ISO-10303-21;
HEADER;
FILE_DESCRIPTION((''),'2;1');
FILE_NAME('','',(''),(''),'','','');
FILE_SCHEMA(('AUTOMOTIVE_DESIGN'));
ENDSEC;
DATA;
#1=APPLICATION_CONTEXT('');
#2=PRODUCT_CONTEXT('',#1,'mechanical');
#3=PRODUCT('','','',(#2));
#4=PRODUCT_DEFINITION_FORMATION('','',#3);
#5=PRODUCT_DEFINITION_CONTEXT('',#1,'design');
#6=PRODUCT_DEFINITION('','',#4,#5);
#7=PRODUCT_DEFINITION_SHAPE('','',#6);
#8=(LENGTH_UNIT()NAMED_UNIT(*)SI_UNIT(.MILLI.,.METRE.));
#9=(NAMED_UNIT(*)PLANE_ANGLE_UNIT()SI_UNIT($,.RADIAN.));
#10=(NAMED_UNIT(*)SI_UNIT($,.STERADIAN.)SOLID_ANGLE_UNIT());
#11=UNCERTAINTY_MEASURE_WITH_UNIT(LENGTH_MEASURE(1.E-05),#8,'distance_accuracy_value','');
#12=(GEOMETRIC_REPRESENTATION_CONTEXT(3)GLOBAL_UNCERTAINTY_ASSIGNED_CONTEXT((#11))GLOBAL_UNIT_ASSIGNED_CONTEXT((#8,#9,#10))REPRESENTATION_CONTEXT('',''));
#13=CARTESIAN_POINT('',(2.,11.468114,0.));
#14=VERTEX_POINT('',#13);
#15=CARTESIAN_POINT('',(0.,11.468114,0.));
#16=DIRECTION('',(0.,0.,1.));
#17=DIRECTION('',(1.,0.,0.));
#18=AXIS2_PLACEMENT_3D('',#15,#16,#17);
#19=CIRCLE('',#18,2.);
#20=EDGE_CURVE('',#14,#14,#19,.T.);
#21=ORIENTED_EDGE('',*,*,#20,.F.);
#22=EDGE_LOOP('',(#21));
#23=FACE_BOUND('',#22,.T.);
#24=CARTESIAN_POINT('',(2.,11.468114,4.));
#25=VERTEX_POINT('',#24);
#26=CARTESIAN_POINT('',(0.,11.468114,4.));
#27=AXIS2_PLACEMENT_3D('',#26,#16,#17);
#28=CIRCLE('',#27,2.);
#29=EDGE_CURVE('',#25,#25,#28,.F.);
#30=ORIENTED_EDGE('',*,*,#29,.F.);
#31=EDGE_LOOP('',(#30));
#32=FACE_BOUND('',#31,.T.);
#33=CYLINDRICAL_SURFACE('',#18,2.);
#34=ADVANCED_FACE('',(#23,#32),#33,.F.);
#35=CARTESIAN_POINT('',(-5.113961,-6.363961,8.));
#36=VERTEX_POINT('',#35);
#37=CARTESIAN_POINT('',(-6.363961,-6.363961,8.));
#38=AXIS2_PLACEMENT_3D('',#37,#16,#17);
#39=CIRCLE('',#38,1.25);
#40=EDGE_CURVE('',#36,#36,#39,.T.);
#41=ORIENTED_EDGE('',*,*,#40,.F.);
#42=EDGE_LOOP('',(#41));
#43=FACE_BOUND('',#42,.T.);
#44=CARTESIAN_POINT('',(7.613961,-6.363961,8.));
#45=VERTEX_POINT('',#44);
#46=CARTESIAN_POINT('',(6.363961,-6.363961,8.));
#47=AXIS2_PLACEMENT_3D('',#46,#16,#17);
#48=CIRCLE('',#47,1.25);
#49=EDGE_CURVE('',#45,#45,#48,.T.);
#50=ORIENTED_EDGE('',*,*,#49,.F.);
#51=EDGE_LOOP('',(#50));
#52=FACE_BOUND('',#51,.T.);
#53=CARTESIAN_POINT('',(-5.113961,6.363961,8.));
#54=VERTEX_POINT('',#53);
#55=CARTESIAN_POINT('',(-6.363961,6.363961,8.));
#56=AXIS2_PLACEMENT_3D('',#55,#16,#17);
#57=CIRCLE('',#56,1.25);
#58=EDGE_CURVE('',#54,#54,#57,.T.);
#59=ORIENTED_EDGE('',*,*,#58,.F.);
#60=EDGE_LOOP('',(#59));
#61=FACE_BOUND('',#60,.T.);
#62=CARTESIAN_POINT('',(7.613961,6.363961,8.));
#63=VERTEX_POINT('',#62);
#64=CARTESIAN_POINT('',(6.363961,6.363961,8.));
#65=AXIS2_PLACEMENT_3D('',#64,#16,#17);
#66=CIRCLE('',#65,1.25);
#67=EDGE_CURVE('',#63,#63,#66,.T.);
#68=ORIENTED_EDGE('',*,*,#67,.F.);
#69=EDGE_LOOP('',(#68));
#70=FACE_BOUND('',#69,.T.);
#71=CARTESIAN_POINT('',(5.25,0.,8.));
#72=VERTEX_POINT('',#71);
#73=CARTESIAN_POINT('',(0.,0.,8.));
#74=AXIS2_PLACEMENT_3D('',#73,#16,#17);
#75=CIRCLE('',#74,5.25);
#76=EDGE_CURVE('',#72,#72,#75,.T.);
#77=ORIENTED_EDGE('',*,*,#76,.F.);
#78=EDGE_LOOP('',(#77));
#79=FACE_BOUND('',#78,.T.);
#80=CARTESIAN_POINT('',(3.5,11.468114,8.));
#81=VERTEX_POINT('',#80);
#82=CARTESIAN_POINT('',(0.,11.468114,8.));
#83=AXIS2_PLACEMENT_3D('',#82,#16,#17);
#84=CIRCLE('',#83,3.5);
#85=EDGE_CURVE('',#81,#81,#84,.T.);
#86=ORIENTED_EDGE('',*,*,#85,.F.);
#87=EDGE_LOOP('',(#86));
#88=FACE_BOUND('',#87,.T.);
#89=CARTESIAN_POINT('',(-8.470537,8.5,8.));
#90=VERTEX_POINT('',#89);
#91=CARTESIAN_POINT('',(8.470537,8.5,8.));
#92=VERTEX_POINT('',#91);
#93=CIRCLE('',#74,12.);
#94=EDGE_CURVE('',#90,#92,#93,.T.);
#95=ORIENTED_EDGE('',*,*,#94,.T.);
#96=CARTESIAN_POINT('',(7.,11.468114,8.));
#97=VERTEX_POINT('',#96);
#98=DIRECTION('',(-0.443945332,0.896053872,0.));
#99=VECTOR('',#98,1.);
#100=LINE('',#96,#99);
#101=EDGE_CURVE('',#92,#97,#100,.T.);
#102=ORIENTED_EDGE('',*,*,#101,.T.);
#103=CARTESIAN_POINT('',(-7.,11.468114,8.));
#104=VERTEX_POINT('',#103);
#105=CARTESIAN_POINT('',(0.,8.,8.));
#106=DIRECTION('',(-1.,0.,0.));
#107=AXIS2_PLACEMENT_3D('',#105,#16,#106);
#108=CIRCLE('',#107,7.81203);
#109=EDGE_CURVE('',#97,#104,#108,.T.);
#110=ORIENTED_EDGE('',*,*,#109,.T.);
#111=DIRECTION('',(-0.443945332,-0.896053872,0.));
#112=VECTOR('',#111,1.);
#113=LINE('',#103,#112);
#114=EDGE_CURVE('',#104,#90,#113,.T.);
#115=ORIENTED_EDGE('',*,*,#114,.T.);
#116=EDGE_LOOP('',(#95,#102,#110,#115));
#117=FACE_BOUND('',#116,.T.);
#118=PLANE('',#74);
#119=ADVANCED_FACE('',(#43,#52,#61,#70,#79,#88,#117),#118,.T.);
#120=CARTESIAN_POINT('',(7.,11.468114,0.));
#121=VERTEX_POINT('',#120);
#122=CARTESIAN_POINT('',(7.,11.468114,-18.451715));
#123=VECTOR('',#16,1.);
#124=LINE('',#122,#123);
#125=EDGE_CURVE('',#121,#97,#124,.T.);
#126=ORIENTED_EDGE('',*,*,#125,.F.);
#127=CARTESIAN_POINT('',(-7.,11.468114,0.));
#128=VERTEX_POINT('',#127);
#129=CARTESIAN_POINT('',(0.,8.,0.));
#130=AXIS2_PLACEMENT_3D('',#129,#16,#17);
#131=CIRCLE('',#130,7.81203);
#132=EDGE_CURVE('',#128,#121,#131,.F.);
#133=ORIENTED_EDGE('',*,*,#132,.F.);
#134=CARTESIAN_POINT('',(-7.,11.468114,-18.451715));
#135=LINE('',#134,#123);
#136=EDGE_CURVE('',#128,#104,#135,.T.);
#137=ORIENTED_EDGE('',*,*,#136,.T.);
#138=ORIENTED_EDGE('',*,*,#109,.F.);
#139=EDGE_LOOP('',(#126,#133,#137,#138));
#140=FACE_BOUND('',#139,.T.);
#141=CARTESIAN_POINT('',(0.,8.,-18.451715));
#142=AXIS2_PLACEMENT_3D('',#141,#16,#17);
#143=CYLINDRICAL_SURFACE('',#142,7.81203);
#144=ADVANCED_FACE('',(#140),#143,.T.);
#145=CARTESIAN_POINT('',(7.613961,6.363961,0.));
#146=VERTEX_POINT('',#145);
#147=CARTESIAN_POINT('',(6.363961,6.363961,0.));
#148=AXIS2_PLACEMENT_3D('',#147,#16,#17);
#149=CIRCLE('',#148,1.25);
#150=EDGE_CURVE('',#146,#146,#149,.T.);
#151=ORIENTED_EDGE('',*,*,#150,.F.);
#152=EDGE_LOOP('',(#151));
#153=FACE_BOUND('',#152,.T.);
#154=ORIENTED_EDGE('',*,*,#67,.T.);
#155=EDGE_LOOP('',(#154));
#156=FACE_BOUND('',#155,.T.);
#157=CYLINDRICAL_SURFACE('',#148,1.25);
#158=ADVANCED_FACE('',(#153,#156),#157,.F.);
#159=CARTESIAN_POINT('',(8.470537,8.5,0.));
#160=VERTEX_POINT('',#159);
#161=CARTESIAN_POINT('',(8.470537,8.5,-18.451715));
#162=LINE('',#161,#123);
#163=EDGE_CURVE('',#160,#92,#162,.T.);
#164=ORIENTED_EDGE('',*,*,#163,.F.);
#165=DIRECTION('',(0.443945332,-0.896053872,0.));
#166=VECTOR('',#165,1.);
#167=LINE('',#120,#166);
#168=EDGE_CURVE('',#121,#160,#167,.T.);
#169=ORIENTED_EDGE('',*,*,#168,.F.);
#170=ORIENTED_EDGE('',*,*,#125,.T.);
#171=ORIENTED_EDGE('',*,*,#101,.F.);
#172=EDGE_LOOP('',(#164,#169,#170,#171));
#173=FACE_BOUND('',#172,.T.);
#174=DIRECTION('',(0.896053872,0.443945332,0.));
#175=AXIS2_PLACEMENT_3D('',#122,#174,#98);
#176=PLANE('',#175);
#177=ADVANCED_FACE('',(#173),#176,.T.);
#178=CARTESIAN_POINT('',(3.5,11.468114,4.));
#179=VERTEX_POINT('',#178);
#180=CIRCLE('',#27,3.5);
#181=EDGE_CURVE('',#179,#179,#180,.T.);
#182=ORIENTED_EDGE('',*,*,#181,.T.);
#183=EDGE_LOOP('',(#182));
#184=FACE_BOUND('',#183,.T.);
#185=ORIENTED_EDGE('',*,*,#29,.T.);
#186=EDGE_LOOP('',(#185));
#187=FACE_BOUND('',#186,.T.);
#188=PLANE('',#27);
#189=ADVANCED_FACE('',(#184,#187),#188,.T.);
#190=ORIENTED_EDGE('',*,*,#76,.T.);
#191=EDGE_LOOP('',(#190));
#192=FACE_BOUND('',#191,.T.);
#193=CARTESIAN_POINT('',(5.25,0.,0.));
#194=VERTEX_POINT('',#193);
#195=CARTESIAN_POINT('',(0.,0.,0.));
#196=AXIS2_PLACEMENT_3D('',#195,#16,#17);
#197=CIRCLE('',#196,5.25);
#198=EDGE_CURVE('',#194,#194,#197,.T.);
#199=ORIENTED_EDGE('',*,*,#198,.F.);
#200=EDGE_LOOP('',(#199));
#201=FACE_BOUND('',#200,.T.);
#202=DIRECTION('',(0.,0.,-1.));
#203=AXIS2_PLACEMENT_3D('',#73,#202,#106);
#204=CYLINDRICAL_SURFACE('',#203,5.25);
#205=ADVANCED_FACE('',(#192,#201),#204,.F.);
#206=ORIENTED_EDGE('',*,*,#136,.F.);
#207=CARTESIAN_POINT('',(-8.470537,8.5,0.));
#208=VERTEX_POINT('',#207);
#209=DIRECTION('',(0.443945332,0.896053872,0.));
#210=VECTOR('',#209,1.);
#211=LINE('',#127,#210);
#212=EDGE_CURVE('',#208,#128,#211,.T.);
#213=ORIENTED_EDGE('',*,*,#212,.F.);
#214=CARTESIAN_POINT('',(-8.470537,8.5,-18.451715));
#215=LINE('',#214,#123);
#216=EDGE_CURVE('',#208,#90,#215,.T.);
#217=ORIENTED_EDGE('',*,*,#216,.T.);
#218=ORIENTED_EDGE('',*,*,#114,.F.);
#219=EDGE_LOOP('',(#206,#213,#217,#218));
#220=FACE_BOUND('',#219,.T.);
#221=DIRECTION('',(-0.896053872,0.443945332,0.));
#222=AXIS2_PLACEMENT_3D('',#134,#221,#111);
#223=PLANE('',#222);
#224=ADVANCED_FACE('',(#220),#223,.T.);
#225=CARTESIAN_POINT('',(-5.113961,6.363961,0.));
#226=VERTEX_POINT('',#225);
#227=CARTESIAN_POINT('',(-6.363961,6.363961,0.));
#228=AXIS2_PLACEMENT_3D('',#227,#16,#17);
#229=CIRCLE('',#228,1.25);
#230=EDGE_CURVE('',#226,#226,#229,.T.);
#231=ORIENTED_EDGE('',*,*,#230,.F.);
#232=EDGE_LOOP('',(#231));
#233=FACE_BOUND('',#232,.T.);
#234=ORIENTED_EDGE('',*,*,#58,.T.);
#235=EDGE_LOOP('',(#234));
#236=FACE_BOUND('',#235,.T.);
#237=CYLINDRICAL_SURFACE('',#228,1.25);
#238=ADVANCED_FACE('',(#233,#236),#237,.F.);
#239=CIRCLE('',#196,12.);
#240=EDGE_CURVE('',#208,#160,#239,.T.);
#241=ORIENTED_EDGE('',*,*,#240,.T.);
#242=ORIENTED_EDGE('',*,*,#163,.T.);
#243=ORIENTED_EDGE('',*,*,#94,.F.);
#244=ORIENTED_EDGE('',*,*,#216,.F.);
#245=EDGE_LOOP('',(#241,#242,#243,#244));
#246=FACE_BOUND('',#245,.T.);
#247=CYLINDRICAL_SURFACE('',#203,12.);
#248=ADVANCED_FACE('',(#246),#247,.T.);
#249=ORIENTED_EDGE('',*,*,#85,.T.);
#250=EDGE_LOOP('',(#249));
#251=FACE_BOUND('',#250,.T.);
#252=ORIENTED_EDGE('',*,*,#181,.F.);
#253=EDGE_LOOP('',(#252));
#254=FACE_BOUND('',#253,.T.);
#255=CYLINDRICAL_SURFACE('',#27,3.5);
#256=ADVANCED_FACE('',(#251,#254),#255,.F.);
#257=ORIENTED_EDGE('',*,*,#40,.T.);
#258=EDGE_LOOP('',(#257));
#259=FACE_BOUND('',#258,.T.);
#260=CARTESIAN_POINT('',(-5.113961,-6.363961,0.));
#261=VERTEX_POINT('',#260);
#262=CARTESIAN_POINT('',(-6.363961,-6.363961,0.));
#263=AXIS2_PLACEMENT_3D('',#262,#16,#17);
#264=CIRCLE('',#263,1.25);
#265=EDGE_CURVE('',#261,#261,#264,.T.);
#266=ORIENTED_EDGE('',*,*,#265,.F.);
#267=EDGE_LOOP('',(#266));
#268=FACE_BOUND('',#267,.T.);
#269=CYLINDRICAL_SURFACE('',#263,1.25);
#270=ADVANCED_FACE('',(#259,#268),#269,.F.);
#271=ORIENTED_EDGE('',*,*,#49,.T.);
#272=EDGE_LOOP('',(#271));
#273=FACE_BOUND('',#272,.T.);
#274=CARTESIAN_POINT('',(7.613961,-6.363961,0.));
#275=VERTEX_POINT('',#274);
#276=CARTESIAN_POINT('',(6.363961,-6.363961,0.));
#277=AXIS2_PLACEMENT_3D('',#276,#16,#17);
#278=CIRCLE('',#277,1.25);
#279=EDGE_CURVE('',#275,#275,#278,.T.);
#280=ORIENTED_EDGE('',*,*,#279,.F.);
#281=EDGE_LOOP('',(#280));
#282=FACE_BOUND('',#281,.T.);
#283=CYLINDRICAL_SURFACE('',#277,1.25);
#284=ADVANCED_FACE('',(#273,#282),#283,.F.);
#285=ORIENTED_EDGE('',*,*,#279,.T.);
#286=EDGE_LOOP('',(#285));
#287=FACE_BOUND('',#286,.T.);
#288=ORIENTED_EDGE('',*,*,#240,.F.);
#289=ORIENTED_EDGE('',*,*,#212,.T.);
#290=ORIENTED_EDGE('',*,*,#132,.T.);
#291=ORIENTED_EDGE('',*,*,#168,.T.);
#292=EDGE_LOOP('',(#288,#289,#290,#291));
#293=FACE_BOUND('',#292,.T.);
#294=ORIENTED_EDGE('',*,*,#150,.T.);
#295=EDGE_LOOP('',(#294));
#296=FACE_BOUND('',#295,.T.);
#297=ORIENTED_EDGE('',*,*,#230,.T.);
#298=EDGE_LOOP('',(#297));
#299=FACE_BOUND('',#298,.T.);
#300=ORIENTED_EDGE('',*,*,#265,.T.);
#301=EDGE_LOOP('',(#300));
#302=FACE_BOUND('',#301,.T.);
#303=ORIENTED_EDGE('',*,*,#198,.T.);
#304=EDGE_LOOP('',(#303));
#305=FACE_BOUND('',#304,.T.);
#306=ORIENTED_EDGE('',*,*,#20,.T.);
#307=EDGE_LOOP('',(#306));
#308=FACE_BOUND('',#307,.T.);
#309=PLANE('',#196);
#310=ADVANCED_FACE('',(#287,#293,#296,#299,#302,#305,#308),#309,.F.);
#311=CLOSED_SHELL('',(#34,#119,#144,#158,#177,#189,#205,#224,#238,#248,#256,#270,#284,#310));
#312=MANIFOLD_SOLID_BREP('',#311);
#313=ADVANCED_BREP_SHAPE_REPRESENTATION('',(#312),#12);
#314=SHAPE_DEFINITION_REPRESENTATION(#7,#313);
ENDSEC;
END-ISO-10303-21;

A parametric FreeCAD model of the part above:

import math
import FreeCAD as App
import Part
import Sketcher
Q = App.Units.Quantity

doc = App.newDocument("Part")
body = doc.addObject("PartDesign::Body", "Body")

sketch1 = body.newObject("Sketcher::SketchObject", "Sketch")
sketch1.AttachmentSupport = (doc.getObject("XY_Plane"), [""])
sketch1.MapMode = "FlatFace"
sketch1.addGeometry([
    Part.Circle(App.Vector(0, 0, 0), App.Vector(0, 0, 1), 12),
    Part.Circle(App.Vector(0, 0, 0), App.Vector(0, 0, 1), 5),
], False)
sketch1.addConstraint([
    Sketcher.Constraint("Coincident", 0, 3, -1, 1),
    Sketcher.Constraint("Coincident", 1, 3, -1, 1),
    Sketcher.Constraint("Diameter", 0, Q("24 mm")),
    Sketcher.Constraint("Diameter", 1, Q("10.5 mm")),
])
pad1 = body.newObject("PartDesign::Pad", "Pad")
pad1.Profile = sketch1
pad1.Length = 8

sketch2 = body.newObject("Sketcher::SketchObject", "Sketch001")
sketch2.AttachmentSupport = (doc.getObject("XY_Plane"), [""])
sketch2.MapMode = "FlatFace"
sketch2.AttachmentOffset = App.Placement(App.Vector(0, 0, 8), App.Rotation())
sketch2.addGeometry([
    Part.LineSegment(App.Vector(-7, 11.5, 0), App.Vector(-8.5, 8.5, 0)),
    Part.LineSegment(App.Vector(-8.5, 8.5, 0), App.Vector(8.5, 8.5, 0)),
    Part.LineSegment(App.Vector(8.5, 8.5, 0), App.Vector(7, 11.5, 0)),
    Part.ArcOfCircle(Part.Circle(App.Vector(0, 8, 0), App.Vector(0, 0, 1), 7.8), math.radians(26), math.radians(154)),
], False)
sketch2.addConstraint([
    Sketcher.Constraint("Coincident", 0, 2, 1, 1),
    Sketcher.Constraint("Coincident", 1, 2, 2, 1),
    Sketcher.Constraint("Tangent", 2, 2, 3, 1),
    Sketcher.Constraint("Tangent", 3, 2, 0, 1),
    Sketcher.Constraint("Horizontal", 1),
    Sketcher.Constraint("Symmetric", 2, 2, 3, 2, -2),
    Sketcher.Constraint("DistanceY", -1, 1, 3, 3, Q("8 mm")),
    Sketcher.Constraint("DistanceX", -1, 1, 2, 2, Q("7 mm")),
    Sketcher.Constraint("DistanceY", -1, 1, 0, 2, Q("8.5 mm")),
    Sketcher.Constraint("Radius", 3, Q("7.81203 mm")),
])
pad2 = body.newObject("PartDesign::Pad", "Pad001")
pad2.Profile = sketch2
pad2.Length = 8
pad2.Reversed = True

sketch3 = body.newObject("Sketcher::SketchObject", "Sketch002")
sketch3.AttachmentSupport = (doc.getObject("XY_Plane"), [""])
sketch3.MapMode = "FlatFace"
sketch3.AttachmentOffset = App.Placement(App.Vector(0, 0, 8), App.Rotation())
sketch3.addGeometry([
    Part.Circle(App.Vector(-6.4, 6.4, 0), App.Vector(0, 0, 1), 1.2),
    Part.Circle(App.Vector(6.4, 6.4, 0), App.Vector(0, 0, 1), 1.2),
    Part.Circle(App.Vector(6.4, -6.4, 0), App.Vector(0, 0, 1), 1.2),
    Part.Circle(App.Vector(-6.4, -6.4, 0), App.Vector(0, 0, 1), 1.2),
], False)
sketch3.addConstraint([
    Sketcher.Constraint("Equal", 0, 1),
    Sketcher.Constraint("Equal", 1, 2),
    Sketcher.Constraint("Equal", 2, 3),
    Sketcher.Constraint("Symmetric", 0, 3, 2, 3, -1, 1),
    Sketcher.Constraint("Symmetric", 1, 3, 3, 3, -1, 1),
    Sketcher.Constraint("Symmetric", 0, 3, 1, 3, -2),
    Sketcher.Constraint("Diameter", 0, Q("2.5 mm")),
    Sketcher.Constraint("DistanceX", 0, 3, -1, 1, Q("6.363961 mm")),
    Sketcher.Constraint("DistanceY", -1, 1, 0, 3, Q("6.363961 mm")),
])
pocket1 = body.newObject("PartDesign::Pocket", "Pocket")
pocket1.Profile = sketch3
pocket1.Type = "ThroughAll"

sketch4 = body.newObject("Sketcher::SketchObject", "Sketch003")
sketch4.AttachmentSupport = (doc.getObject("XY_Plane"), [""])
sketch4.MapMode = "FlatFace"
sketch4.AttachmentOffset = App.Placement(App.Vector(0, 0, 8), App.Rotation())
sketch4.addGeometry(Part.Circle(App.Vector(0, 11.5, 0), App.Vector(0, 0, 1), 2), False)
sketch4.addConstraint([
    Sketcher.Constraint("PointOnObject", 0, 3, -2),
    Sketcher.Constraint("Diameter", 0, Q("4 mm")),
    Sketcher.Constraint("DistanceY", -1, 1, 0, 3, Q("11.468114 mm")),
])
pocket2 = body.newObject("PartDesign::Pocket", "Pocket001")
pocket2.Profile = sketch4
pocket2.Type = "ThroughAll"

sketch5 = body.newObject("Sketcher::SketchObject", "Sketch004")
sketch5.AttachmentSupport = (doc.getObject("XY_Plane"), [""])
sketch5.MapMode = "FlatFace"
sketch5.AttachmentOffset = App.Placement(App.Vector(0, 0, 8), App.Rotation())
sketch5.addGeometry(Part.Circle(App.Vector(0, 11.5, 0), App.Vector(0, 0, 1), 3.5), False)
sketch5.addConstraint([
    Sketcher.Constraint("PointOnObject", 0, 3, -2),
    Sketcher.Constraint("Diameter", 0, Q("7 mm")),
    Sketcher.Constraint("DistanceY", -1, 1, 0, 3, Q("11.468114 mm")),
])
pocket3 = body.newObject("PartDesign::Pocket", "Pocket002")
pocket3.Profile = sketch5
pocket3.Length = 4

doc.recompute()
